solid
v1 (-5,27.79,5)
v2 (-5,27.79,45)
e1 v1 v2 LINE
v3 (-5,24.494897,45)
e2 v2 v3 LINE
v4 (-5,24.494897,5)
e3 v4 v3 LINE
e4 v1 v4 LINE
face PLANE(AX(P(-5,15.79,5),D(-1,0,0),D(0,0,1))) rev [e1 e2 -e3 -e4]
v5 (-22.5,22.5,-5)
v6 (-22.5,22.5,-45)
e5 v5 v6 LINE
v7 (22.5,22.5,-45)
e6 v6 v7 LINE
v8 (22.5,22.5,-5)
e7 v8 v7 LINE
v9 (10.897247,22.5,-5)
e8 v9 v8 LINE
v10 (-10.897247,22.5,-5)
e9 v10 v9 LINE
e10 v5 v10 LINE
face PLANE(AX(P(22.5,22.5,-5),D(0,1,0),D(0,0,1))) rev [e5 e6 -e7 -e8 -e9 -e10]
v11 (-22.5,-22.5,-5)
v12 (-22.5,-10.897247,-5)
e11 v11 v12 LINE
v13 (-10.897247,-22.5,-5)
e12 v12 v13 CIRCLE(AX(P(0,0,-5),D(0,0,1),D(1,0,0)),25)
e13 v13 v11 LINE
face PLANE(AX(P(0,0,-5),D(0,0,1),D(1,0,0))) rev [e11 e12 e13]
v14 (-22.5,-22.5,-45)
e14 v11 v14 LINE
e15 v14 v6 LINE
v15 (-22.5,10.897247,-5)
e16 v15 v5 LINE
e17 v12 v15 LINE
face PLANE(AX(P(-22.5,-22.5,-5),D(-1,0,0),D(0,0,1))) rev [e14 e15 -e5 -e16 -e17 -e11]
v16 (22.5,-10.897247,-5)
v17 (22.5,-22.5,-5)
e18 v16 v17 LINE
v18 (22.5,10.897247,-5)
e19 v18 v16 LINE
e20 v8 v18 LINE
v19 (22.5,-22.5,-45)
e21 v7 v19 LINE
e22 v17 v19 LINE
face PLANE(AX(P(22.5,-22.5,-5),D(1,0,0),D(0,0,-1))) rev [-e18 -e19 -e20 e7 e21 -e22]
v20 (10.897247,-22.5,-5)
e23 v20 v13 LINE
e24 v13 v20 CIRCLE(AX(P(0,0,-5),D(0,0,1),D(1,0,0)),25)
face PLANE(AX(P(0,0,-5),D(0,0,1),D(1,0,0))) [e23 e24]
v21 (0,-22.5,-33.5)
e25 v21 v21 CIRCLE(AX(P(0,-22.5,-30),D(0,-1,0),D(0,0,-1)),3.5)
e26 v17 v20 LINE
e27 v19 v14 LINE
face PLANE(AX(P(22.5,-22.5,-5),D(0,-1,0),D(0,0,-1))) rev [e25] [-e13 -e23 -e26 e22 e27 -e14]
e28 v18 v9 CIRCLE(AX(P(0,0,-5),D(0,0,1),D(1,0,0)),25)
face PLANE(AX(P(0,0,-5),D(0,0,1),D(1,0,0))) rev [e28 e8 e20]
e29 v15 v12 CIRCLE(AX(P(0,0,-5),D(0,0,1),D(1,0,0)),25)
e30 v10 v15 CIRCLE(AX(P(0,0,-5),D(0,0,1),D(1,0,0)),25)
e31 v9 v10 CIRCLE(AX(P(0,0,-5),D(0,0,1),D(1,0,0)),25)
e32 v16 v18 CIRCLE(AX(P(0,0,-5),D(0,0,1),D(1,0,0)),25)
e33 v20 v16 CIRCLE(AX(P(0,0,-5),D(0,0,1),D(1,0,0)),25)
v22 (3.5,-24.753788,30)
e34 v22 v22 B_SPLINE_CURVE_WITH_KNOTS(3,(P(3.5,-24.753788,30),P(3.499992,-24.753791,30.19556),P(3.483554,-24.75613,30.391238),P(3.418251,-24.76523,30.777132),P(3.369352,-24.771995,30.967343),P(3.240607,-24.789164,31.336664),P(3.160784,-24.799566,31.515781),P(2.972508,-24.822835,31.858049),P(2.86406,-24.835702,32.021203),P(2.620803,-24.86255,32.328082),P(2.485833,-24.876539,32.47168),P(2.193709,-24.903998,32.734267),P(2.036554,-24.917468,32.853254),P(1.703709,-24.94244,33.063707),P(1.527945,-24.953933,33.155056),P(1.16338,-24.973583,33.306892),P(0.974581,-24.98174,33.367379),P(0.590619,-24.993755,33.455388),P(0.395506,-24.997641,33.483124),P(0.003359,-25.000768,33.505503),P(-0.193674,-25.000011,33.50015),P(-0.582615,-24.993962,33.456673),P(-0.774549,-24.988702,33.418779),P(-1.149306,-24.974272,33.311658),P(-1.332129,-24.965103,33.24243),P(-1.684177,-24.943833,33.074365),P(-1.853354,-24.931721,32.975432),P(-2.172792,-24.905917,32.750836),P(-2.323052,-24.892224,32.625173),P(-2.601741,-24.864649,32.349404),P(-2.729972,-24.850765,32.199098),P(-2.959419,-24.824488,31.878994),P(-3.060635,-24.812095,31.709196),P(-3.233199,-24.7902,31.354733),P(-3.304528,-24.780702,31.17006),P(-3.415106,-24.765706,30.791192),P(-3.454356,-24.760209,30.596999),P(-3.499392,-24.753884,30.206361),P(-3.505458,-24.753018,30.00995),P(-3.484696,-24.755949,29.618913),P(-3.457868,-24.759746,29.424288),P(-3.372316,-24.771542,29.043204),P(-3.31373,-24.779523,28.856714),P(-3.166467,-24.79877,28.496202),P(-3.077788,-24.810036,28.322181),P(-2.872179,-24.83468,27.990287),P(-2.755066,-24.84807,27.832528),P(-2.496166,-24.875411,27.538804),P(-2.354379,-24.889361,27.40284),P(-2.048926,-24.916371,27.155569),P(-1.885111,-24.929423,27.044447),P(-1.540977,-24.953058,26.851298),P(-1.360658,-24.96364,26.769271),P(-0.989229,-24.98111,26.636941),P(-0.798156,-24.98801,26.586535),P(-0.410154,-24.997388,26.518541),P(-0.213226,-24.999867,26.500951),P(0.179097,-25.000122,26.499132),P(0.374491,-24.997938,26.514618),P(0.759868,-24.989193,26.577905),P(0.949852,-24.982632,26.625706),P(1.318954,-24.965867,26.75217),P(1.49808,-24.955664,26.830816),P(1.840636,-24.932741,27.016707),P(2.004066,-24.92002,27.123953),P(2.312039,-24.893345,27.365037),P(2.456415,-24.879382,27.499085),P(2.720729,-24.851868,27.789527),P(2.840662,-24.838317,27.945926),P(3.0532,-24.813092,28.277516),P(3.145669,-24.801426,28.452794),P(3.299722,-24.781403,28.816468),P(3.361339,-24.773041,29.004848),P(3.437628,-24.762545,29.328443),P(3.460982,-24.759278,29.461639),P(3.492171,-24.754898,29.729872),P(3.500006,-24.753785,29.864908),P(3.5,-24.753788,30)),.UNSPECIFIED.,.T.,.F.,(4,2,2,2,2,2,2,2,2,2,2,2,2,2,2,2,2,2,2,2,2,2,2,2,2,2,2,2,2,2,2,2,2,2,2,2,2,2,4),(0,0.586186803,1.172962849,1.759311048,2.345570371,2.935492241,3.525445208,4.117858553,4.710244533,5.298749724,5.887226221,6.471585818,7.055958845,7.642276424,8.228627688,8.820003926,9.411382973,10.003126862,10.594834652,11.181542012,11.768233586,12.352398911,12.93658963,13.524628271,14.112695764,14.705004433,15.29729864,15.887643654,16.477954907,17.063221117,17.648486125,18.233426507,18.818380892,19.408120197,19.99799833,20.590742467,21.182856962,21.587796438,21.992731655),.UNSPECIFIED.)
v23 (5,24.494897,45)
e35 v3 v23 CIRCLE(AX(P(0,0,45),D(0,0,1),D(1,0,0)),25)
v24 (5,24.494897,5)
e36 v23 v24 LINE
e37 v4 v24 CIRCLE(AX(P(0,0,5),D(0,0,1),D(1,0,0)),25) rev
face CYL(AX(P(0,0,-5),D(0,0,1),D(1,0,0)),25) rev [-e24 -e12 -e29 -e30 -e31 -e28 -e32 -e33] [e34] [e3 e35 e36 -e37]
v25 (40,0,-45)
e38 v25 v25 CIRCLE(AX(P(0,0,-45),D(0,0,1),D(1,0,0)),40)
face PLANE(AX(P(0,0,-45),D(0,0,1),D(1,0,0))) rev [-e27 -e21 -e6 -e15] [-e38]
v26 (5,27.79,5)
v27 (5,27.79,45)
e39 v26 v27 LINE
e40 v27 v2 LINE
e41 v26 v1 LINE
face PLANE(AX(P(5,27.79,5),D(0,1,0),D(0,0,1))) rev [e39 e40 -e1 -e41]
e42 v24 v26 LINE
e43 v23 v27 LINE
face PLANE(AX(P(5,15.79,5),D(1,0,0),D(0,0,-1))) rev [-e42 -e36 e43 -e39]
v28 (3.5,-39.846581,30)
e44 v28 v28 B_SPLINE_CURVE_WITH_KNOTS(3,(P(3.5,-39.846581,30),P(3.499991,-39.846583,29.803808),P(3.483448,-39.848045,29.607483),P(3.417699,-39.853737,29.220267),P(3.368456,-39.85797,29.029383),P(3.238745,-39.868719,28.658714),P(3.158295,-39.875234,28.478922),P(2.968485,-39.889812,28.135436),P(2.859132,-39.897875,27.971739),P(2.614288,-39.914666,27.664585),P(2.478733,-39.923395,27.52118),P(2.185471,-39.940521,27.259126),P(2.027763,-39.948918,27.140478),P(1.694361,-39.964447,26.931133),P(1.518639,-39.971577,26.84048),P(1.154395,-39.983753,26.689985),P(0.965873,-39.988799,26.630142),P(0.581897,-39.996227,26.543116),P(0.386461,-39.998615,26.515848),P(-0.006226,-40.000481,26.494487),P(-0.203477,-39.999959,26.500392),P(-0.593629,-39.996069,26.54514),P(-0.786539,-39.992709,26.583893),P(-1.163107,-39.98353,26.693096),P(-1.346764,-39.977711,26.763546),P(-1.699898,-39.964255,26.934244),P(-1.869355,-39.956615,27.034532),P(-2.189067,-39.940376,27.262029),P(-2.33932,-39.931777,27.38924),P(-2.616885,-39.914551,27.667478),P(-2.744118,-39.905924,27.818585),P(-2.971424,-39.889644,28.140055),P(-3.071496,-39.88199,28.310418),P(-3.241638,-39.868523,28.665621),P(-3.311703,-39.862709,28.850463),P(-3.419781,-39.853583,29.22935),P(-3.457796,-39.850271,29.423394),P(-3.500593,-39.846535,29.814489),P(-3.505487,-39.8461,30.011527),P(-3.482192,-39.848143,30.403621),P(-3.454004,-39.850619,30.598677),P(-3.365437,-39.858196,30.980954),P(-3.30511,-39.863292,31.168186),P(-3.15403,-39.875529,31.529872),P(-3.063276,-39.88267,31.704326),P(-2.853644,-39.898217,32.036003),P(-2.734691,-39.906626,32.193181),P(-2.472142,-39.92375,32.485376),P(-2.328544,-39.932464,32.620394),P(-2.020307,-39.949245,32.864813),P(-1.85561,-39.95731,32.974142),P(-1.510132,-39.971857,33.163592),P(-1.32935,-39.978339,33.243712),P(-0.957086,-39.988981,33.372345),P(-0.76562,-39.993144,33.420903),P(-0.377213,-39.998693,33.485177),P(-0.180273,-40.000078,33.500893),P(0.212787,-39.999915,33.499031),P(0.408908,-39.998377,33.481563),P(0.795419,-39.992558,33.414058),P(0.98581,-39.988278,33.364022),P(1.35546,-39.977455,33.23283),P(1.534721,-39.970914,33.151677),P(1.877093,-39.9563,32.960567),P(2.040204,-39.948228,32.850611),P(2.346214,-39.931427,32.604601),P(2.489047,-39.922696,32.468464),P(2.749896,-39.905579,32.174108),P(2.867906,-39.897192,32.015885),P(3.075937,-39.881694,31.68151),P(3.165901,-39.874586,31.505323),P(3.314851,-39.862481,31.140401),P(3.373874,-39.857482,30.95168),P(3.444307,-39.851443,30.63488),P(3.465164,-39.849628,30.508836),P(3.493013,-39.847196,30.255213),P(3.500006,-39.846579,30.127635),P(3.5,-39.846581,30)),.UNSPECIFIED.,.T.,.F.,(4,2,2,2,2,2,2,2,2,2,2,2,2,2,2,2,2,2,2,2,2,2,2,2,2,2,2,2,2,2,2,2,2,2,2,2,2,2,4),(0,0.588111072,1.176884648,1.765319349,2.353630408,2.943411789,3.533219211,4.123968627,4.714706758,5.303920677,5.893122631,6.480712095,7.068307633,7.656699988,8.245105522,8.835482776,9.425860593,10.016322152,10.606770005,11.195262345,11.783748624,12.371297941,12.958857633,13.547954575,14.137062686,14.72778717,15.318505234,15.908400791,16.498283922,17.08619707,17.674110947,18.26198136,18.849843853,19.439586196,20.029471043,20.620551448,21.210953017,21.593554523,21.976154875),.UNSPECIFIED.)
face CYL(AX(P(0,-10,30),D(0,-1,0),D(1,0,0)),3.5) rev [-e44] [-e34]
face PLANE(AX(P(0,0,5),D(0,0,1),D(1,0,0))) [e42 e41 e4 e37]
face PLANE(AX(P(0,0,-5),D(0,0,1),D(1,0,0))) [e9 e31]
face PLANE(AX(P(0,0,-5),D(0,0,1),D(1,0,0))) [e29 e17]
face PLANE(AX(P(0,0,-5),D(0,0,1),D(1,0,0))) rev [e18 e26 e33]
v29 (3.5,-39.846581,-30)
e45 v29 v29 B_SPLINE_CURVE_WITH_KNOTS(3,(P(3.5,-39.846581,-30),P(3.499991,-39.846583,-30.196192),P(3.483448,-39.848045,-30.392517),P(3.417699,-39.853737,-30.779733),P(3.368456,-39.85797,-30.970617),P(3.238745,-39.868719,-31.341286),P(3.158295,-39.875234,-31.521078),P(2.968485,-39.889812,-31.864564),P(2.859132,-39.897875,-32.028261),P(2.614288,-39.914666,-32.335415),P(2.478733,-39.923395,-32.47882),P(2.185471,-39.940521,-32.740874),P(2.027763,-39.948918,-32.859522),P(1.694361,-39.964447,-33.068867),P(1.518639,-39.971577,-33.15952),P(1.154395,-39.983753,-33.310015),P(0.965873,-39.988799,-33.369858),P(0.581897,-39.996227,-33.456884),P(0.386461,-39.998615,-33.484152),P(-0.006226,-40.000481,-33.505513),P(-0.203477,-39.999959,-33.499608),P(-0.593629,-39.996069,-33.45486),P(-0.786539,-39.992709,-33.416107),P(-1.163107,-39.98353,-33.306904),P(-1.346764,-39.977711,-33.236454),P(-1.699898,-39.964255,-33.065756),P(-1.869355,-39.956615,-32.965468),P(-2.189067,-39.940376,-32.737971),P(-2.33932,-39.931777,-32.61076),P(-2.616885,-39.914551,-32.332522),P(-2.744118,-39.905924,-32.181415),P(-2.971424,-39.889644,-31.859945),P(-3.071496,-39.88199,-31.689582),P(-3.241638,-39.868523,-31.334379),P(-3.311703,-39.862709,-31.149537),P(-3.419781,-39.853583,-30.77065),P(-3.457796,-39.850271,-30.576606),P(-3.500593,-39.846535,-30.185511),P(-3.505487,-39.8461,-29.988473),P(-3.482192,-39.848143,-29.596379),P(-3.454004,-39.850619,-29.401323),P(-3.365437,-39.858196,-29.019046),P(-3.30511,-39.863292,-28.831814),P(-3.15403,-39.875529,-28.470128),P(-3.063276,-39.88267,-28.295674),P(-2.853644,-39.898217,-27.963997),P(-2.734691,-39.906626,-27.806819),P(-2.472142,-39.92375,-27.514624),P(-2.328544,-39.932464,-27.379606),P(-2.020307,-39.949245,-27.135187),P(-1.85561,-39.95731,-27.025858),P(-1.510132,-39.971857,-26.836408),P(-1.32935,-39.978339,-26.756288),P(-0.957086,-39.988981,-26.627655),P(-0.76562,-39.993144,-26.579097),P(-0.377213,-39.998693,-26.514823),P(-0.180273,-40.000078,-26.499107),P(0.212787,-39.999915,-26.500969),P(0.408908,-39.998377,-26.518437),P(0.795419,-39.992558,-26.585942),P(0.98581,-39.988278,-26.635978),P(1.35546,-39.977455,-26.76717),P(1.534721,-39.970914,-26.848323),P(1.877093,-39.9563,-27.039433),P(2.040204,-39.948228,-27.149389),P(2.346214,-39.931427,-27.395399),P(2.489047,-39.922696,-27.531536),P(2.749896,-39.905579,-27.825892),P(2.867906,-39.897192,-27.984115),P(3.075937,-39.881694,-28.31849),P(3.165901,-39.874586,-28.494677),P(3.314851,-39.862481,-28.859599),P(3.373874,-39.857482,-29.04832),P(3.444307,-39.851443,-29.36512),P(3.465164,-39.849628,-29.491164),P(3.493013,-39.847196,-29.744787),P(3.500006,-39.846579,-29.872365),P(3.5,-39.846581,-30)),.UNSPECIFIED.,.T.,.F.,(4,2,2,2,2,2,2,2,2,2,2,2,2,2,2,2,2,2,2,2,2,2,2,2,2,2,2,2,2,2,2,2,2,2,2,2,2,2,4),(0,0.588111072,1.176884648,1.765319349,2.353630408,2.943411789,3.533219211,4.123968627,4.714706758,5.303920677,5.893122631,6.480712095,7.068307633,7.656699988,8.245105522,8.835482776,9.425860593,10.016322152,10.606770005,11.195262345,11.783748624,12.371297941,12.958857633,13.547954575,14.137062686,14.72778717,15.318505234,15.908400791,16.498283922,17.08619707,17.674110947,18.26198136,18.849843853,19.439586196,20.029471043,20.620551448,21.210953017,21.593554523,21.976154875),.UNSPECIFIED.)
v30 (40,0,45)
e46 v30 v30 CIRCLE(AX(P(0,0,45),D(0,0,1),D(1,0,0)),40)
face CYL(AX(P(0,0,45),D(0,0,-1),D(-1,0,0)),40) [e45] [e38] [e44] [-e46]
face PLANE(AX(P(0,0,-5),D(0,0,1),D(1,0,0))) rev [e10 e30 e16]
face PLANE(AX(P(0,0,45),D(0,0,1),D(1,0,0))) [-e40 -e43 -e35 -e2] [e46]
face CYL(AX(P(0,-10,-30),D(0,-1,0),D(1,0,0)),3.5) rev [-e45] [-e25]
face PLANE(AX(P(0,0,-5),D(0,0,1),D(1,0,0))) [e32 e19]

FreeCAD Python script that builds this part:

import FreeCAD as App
import Part
import Sketcher
from FreeCAD import Vector
Q = App.Units.Quantity


def add_polygon(sketch, points):
    """Adds a closed chain of lines whose ends are joined by coincident constraints."""
    first, n = sketch.GeometryCount, len(points)
    for a, b in zip(points, points[1:] + points[:1]):
        sketch.addGeometry(Part.LineSegment(App.Vector(*a, 0), App.Vector(*b, 0)), False)
    for i in range(n):
        sketch.addConstraint(Sketcher.Constraint("Coincident", first + i, 2, first + (i + 1) % n, 1))

doc = App.newDocument("Part")
params = doc.addObject("Spreadsheet::Sheet", "Params")
for row, (alias, value) in enumerate([
    ("sketch1_diameter", "80 mm"),
    ("pad1_length", "90 mm"),
    ("sketch2_diameter", "50 mm"),
    ("pocket1_length", "50 mm"),
    ("sketch3_width", "45 mm"),
    ("pocket2_length", "40 mm"),
    ("sketch4_width", "10 mm"),
    ("sketch4_height", "12 mm"),
    ("pocket3_length", "40 mm"),
    ("sketch5_diameter", "7 mm"),
    ("pocket4_length", "30 mm"),
], start=1):
    params.set(f"A{row}", alias)
    params.set(f"B{row}", "=" + value)
    params.setAlias(f"B{row}", alias)

body = doc.addObject("PartDesign::Body", "Body")

# Sketch on XY plane
sketch1 = body.newObject("Sketcher::SketchObject", "Sketch")
sketch1.AttachmentSupport = (doc.getObject("XY_Plane"), [""])
sketch1.MapMode = "FlatFace"
sketch1.addGeometry(Part.Circle(Vector(0, 0, 0), Vector(0, 0, 1), 40), False)
sketch1.addConstraint(Sketcher.Constraint("Coincident", 0, 3, -1, 1))
sketch1.addConstraint(Sketcher.Constraint("Diameter", 0, Q("80 mm")))
sketch1.setExpression("Constraints[1]", "Params.sketch1_diameter")
pad1 = body.newObject("PartDesign::Pad", "Pad")
pad1.Profile = sketch1
pad1.setExpression("Length", "Params.pad1_length")
pad1.Midplane = True

# Sketch on XY plane
sketch2 = body.newObject("Sketcher::SketchObject", "Sketch001")
sketch2.AttachmentSupport = (doc.getObject("XY_Plane"), [""])
sketch2.MapMode = "FlatFace"
sketch2.AttachmentOffset = App.Placement(Vector(0, 0, 45), App.Rotation())
sketch2.addGeometry(Part.Circle(Vector(0, 0, 0), Vector(0, 0, 1), 25), False)
sketch2.addConstraint(Sketcher.Constraint("Coincident", 0, 3, -1, 1))
sketch2.addConstraint(Sketcher.Constraint("Diameter", 0, Q("50 mm")))
sketch2.setExpression("Constraints[1]", "Params.sketch2_diameter")
pocket1 = body.newObject("PartDesign::Pocket", "Pocket")
pocket1.Profile = sketch2
pocket1.setExpression("Length", "Params.pocket1_length")

# Sketch on XY plane
sketch3 = body.newObject("Sketcher::SketchObject", "Sketch002")
sketch3.AttachmentSupport = (doc.getObject("XY_Plane"), [""])
sketch3.MapMode = "FlatFace"
sketch3.AttachmentOffset = App.Placement(Vector(0, 0, -45), App.Rotation())
add_polygon(sketch3, [(22, 22), (22, -22), (-22, -22), (-22, 22)])  # lines 0-3
sketch3.addConstraint(Sketcher.Constraint("Vertical", 0))
sketch3.addConstraint(Sketcher.Constraint("Horizontal", 1))
sketch3.addConstraint(Sketcher.Constraint("Vertical", 2))
sketch3.addConstraint(Sketcher.Constraint("Horizontal", 3))
sketch3.addConstraint(Sketcher.Constraint("Symmetric", 0, 2, 2, 2, -1, 1))
sketch3.addConstraint(Sketcher.Constraint("Equal", 3, 0))
sketch3.addConstraint(Sketcher.Constraint("DistanceX", 1, 2, 1, 1, Q("45 mm")))
sketch3.setExpression("Constraints[10]", "Params.sketch3_width")
pocket2 = body.newObject("PartDesign::Pocket", "Pocket001")
pocket2.Profile = sketch3
pocket2.setExpression("Length", "Params.pocket2_length")
pocket2.Reversed = True

# Sketch on XY plane
sketch4 = body.newObject("Sketcher::SketchObject", "Sketch003")
sketch4.AttachmentSupport = (doc.getObject("XY_Plane"), [""])
sketch4.MapMode = "FlatFace"
sketch4.AttachmentOffset = App.Placement(Vector(0, 0, 45), App.Rotation())
add_polygon(sketch4, [(-5, 28), (-5, 16), (5, 16), (5, 28)])  # lines 0-3
sketch4.addConstraint(Sketcher.Constraint("Vertical", 0))
sketch4.addConstraint(Sketcher.Constraint("Horizontal", 1))
sketch4.addConstraint(Sketcher.Constraint("Vertical", 2))
sketch4.addConstraint(Sketcher.Constraint("Horizontal", 3))
sketch4.addConstraint(Sketcher.Constraint("DistanceX", 1, 1, 1, 2, Q("10 mm")))
sketch4.addConstraint(Sketcher.Constraint("DistanceY", 0, 2, 0, 1, Q("12 mm")))
sketch4.addConstraint(Sketcher.Constraint("DistanceX", 0, 2, -1, 1, Q("5 mm")))
sketch4.addConstraint(Sketcher.Constraint("DistanceY", -1, 1, 0, 2, Q("15.79 mm")))
sketch4.setExpression("Constraints[8]", "Params.sketch4_width")
sketch4.setExpression("Constraints[9]", "Params.sketch4_height")
pocket3 = body.newObject("PartDesign::Pocket", "Pocket002")
pocket3.Profile = sketch4
pocket3.setExpression("Length", "Params.pocket3_length")

# Sketch on XZ plane
sketch5 = body.newObject("Sketcher::SketchObject", "Sketch004")
sketch5.AttachmentSupport = (doc.getObject("XZ_Plane"), [""])
sketch5.MapMode = "FlatFace"
sketch5.AttachmentOffset = App.Placement(Vector(0, 0, 40), App.Rotation())
sketch5.addGeometry(Part.Circle(Vector(0, 30, 0), Vector(0, 0, 1), 3.5), False)
sketch5.addGeometry(Part.Circle(Vector(0, -30, 0), Vector(0, 0, 1), 3.5), False)
sketch5.addConstraint(Sketcher.Constraint("Equal", 0, 1))
sketch5.addConstraint(Sketcher.Constraint("Symmetric", 0, 3, 1, 3, -1, 1))
sketch5.addConstraint(Sketcher.Constraint("PointOnObject", 0, 3, -2))
sketch5.addConstraint(Sketcher.Constraint("Diameter", 0, Q("7 mm")))
sketch5.addConstraint(Sketcher.Constraint("DistanceY", -1, 1, 0, 3, Q("30 mm")))
sketch5.setExpression("Constraints[3]", "Params.sketch5_diameter")
pocket4 = body.newObject("PartDesign::Pocket", "Pocket003")
pocket4.Profile = sketch5
pocket4.setExpression("Length", "Params.pocket4_length")

doc.recompute()
